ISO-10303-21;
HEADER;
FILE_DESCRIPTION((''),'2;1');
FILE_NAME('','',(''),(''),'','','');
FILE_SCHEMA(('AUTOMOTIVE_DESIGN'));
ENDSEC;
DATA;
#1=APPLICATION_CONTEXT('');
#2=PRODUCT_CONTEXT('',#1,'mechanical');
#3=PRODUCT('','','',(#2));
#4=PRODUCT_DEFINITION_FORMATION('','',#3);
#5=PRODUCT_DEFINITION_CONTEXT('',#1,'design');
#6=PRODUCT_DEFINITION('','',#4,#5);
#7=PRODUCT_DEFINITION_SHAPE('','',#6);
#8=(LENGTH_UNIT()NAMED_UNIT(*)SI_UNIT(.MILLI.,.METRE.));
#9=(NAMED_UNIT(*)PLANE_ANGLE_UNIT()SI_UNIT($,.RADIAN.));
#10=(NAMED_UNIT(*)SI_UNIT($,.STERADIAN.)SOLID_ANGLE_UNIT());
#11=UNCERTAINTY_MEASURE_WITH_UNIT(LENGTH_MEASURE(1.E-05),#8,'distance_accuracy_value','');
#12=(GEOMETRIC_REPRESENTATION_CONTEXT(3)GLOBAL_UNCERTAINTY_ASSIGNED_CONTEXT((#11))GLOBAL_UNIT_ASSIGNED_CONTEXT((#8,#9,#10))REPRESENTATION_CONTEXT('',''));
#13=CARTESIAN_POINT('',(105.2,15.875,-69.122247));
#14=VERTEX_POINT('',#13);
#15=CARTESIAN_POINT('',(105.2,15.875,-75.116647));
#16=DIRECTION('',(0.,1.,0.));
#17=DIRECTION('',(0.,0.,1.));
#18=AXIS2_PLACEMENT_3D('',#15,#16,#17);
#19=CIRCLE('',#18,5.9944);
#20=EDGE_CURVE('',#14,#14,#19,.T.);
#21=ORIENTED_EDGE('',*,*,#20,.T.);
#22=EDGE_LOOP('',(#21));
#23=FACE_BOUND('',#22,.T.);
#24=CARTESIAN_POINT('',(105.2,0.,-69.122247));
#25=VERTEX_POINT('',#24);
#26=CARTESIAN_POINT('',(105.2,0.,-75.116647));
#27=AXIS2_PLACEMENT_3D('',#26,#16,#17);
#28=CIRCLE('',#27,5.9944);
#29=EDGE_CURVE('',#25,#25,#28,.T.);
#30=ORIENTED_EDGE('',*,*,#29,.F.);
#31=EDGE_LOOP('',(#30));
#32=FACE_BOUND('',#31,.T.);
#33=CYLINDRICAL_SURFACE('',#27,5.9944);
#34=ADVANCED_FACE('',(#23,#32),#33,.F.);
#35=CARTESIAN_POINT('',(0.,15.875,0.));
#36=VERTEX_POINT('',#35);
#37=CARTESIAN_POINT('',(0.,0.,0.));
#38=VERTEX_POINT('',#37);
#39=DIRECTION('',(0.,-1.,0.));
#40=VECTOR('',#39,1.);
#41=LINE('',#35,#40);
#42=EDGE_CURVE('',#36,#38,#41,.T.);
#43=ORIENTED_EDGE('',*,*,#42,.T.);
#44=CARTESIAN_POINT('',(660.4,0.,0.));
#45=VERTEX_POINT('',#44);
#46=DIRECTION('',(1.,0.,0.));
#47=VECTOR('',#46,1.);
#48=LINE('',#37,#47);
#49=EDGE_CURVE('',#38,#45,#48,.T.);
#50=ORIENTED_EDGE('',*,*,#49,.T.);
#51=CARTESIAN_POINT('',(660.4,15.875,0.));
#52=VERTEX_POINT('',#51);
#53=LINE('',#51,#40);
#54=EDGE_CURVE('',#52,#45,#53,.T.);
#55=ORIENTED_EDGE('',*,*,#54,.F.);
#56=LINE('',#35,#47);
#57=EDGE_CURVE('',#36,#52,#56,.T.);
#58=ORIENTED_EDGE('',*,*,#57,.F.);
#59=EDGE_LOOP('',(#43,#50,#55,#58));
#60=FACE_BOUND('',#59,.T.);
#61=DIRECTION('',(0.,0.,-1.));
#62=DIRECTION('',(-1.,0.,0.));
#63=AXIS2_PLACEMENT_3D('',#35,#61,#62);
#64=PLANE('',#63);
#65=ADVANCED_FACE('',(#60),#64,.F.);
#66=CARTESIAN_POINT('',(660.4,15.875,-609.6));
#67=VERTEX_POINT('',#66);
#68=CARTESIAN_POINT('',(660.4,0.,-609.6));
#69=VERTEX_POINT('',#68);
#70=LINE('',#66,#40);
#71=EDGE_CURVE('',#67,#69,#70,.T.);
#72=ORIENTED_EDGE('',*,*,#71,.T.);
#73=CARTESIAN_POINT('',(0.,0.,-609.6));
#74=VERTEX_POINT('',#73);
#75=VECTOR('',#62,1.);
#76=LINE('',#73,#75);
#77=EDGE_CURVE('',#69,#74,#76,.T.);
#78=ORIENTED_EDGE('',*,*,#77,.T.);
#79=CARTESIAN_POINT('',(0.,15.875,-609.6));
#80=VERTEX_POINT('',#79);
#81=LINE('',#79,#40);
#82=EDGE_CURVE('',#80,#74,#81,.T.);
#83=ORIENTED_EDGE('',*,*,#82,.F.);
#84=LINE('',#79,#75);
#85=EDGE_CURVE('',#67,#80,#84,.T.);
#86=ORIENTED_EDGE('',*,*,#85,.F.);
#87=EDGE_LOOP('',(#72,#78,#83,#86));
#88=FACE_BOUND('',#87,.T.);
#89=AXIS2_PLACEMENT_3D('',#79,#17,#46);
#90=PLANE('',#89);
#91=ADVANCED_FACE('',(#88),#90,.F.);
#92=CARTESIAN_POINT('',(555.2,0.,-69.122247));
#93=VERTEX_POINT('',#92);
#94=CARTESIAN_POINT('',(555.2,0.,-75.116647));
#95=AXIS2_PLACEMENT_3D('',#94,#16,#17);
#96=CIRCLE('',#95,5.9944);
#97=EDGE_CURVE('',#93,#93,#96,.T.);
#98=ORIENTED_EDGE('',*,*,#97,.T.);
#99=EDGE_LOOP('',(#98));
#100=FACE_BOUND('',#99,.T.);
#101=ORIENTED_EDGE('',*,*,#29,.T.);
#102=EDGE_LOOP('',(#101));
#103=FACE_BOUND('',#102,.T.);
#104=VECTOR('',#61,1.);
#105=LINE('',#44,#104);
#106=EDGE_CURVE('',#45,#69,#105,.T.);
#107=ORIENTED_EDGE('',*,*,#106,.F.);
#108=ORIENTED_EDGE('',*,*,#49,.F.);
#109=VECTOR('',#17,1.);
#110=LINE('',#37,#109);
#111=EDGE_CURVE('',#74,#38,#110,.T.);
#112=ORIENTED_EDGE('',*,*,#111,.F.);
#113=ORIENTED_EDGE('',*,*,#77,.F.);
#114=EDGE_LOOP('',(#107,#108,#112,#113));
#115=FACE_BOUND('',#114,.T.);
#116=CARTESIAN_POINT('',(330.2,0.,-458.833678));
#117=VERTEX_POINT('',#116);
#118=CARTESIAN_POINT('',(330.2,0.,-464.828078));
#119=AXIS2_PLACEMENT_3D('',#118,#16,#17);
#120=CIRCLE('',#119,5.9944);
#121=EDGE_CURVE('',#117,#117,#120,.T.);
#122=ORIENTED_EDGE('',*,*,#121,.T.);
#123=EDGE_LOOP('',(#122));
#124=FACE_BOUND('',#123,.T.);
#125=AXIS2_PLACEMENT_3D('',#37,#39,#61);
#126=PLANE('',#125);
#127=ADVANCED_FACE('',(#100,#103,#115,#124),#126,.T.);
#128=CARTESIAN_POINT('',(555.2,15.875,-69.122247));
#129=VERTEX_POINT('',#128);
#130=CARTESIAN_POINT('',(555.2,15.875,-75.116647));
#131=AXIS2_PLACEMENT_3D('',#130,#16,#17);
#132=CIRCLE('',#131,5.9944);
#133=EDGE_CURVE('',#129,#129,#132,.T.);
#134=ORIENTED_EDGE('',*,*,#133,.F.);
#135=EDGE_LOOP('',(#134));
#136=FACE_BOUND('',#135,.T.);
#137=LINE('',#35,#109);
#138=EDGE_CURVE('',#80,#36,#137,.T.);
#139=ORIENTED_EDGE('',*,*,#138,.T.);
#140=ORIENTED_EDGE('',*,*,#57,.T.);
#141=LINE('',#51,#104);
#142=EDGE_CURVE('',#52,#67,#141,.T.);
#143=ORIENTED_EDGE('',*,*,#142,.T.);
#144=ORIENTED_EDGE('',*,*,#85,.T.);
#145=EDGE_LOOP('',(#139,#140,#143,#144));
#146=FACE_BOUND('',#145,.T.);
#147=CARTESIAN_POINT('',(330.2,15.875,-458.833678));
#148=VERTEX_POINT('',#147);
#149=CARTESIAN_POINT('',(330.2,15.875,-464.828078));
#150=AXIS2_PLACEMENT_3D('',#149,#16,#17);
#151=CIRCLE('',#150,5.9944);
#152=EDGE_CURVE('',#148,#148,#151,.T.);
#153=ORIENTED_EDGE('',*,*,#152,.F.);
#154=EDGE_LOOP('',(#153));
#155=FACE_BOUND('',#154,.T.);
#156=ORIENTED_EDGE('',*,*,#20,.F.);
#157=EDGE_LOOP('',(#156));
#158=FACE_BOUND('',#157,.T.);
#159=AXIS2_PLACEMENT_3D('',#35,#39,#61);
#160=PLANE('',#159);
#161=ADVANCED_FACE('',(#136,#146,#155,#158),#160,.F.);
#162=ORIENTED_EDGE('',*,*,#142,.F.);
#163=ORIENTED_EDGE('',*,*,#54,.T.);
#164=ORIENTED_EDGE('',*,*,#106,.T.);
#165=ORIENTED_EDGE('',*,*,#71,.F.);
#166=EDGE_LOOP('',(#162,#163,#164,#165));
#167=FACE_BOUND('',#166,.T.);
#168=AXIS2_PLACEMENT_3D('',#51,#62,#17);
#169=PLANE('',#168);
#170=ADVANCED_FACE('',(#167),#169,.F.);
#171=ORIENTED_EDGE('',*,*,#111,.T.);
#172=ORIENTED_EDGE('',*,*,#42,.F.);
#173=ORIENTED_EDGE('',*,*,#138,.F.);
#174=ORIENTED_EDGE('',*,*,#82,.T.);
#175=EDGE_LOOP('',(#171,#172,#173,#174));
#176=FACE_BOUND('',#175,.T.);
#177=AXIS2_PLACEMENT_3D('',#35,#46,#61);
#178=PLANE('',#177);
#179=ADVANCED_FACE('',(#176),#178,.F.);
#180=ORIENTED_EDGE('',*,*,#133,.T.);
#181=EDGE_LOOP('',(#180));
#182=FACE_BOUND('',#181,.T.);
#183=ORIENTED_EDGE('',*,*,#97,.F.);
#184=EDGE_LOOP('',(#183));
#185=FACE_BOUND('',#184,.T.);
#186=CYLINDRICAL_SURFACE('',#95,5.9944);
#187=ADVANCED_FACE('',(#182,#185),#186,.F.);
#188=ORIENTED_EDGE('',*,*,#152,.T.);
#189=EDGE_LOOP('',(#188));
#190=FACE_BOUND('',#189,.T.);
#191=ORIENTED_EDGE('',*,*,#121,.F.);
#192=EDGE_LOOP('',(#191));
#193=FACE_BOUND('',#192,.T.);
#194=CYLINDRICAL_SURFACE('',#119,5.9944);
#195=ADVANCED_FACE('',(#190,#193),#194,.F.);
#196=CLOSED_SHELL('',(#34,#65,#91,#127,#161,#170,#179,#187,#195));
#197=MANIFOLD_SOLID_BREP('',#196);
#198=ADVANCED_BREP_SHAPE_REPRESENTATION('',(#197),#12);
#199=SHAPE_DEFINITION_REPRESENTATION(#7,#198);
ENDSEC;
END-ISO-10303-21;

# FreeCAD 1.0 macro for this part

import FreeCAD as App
import Part
import Sketcher

V = App.Vector
Q = App.Units.Quantity

doc = App.newDocument("Part")
params = doc.addObject("Spreadsheet::Sheet", "Params")
for row, (alias, value) in enumerate([
    ("sketch1_width", "26 in"),
    ("sketch1_height", "24 in"),
    ("pad1_length", "0.625 in"),
    ("sketch2_diameter", "0.472 in"),
], start=1):
    params.set(f"A{row}", alias)
    params.set(f"B{row}", "=" + value)
    params.setAlias(f"B{row}", alias)

body = doc.addObject("PartDesign::Body", "Body")

# Sketch on XZ plane
sketch1 = body.newObject("Sketcher::SketchObject", "Sketch")
sketch1.AttachmentSupport = (doc.getObject("XZ_Plane"), [""])
sketch1.MapMode = "FlatFace"
sketch1.addGeometry(Part.LineSegment(V(0, -610, 0), V(0, 0, 0)), False)
sketch1.addGeometry(Part.LineSegment(V(0, 0, 0), V(660, 0, 0)), False)
sketch1.addGeometry(Part.LineSegment(V(660, 0, 0), V(660, -610, 0)), False)
sketch1.addGeometry(Part.LineSegment(V(660, -610, 0), V(0, -610, 0)), False)
sketch1.addConstraint(Sketcher.Constraint("Coincident", 0, 2, 1, 1))
sketch1.addConstraint(Sketcher.Constraint("Coincident", 1, 2, 2, 1))
sketch1.addConstraint(Sketcher.Constraint("Coincident", 2, 2, 3, 1))
sketch1.addConstraint(Sketcher.Constraint("Coincident", 3, 2, 0, 1))
sketch1.addConstraint(Sketcher.Constraint("Vertical", 0))
sketch1.addConstraint(Sketcher.Constraint("Horizontal", 1))
sketch1.addConstraint(Sketcher.Constraint("Vertical", 2))
sketch1.addConstraint(Sketcher.Constraint("Horizontal", 3))
sketch1.addConstraint(Sketcher.Constraint("Coincident", 0, 2, -1, 1))
sketch1.addConstraint(Sketcher.Constraint("DistanceX", 1, 1, 1, 2, Q("26 in")))
sketch1.addConstraint(Sketcher.Constraint("DistanceY", 0, 1, 0, 2, Q("24 in")))
sketch1.setExpression("Constraints[9]", "Params.sketch1_width")
sketch1.setExpression("Constraints[10]", "Params.sketch1_height")
pad1 = body.newObject("PartDesign::Pad", "Pad")
pad1.Profile = sketch1
pad1.setExpression("Length", "Params.pad1_length")
pad1.Reversed = True

# Sketch on XZ plane
sketch2 = body.newObject("Sketcher::SketchObject", "Sketch001")
sketch2.AttachmentSupport = (doc.getObject("XZ_Plane"), [""])
sketch2.MapMode = "FlatFace"
sketch2.AttachmentOffset = App.Placement(V(0, 0, -0.625 * 25.4), App.Rotation())
sketch2.addGeometry(Part.Circle(V(105, -75, 0), V(0, 0, 1), 6), False)
sketch2.addGeometry(Part.Circle(V(555, -75, 0), V(0, 0, 1), 6), False)
sketch2.addGeometry(Part.Circle(V(330, -465, 0), V(0, 0, 1), 6), False)
sketch2.addConstraint(Sketcher.Constraint("Equal", 0, 1))
sketch2.addConstraint(Sketcher.Constraint("Equal", 1, 2))
sketch2.addConstraint(Sketcher.Constraint("Horizontal", 0, 3, 1, 3))
sketch2.addConstraint(Sketcher.Constraint("Diameter", 0, Q("0.472 in")))
sketch2.addConstraint(Sketcher.Constraint("DistanceX", -1, 1, 2, 3, Q("13 in")))
sketch2.addConstraint(Sketcher.Constraint("DistanceX", -1, 1, 0, 3, 105.2))
sketch2.addConstraint(Sketcher.Constraint("DistanceX", -1, 1, 1, 3, 555.2))
sketch2.addConstraint(Sketcher.Constraint("DistanceY", 2, 3, -1, 1, 464.828078))
sketch2.addConstraint(Sketcher.Constraint("DistanceY", 2, 3, 0, 3, 389.711432))
sketch2.setExpression("Constraints[3]", "Params.sketch2_diameter")
pocket1 = body.newObject("PartDesign::Pocket", "Pocket")
pocket1.Profile = sketch2
pocket1.Type = "ThroughAll"
pocket1.Reversed = True

doc.recompute()
